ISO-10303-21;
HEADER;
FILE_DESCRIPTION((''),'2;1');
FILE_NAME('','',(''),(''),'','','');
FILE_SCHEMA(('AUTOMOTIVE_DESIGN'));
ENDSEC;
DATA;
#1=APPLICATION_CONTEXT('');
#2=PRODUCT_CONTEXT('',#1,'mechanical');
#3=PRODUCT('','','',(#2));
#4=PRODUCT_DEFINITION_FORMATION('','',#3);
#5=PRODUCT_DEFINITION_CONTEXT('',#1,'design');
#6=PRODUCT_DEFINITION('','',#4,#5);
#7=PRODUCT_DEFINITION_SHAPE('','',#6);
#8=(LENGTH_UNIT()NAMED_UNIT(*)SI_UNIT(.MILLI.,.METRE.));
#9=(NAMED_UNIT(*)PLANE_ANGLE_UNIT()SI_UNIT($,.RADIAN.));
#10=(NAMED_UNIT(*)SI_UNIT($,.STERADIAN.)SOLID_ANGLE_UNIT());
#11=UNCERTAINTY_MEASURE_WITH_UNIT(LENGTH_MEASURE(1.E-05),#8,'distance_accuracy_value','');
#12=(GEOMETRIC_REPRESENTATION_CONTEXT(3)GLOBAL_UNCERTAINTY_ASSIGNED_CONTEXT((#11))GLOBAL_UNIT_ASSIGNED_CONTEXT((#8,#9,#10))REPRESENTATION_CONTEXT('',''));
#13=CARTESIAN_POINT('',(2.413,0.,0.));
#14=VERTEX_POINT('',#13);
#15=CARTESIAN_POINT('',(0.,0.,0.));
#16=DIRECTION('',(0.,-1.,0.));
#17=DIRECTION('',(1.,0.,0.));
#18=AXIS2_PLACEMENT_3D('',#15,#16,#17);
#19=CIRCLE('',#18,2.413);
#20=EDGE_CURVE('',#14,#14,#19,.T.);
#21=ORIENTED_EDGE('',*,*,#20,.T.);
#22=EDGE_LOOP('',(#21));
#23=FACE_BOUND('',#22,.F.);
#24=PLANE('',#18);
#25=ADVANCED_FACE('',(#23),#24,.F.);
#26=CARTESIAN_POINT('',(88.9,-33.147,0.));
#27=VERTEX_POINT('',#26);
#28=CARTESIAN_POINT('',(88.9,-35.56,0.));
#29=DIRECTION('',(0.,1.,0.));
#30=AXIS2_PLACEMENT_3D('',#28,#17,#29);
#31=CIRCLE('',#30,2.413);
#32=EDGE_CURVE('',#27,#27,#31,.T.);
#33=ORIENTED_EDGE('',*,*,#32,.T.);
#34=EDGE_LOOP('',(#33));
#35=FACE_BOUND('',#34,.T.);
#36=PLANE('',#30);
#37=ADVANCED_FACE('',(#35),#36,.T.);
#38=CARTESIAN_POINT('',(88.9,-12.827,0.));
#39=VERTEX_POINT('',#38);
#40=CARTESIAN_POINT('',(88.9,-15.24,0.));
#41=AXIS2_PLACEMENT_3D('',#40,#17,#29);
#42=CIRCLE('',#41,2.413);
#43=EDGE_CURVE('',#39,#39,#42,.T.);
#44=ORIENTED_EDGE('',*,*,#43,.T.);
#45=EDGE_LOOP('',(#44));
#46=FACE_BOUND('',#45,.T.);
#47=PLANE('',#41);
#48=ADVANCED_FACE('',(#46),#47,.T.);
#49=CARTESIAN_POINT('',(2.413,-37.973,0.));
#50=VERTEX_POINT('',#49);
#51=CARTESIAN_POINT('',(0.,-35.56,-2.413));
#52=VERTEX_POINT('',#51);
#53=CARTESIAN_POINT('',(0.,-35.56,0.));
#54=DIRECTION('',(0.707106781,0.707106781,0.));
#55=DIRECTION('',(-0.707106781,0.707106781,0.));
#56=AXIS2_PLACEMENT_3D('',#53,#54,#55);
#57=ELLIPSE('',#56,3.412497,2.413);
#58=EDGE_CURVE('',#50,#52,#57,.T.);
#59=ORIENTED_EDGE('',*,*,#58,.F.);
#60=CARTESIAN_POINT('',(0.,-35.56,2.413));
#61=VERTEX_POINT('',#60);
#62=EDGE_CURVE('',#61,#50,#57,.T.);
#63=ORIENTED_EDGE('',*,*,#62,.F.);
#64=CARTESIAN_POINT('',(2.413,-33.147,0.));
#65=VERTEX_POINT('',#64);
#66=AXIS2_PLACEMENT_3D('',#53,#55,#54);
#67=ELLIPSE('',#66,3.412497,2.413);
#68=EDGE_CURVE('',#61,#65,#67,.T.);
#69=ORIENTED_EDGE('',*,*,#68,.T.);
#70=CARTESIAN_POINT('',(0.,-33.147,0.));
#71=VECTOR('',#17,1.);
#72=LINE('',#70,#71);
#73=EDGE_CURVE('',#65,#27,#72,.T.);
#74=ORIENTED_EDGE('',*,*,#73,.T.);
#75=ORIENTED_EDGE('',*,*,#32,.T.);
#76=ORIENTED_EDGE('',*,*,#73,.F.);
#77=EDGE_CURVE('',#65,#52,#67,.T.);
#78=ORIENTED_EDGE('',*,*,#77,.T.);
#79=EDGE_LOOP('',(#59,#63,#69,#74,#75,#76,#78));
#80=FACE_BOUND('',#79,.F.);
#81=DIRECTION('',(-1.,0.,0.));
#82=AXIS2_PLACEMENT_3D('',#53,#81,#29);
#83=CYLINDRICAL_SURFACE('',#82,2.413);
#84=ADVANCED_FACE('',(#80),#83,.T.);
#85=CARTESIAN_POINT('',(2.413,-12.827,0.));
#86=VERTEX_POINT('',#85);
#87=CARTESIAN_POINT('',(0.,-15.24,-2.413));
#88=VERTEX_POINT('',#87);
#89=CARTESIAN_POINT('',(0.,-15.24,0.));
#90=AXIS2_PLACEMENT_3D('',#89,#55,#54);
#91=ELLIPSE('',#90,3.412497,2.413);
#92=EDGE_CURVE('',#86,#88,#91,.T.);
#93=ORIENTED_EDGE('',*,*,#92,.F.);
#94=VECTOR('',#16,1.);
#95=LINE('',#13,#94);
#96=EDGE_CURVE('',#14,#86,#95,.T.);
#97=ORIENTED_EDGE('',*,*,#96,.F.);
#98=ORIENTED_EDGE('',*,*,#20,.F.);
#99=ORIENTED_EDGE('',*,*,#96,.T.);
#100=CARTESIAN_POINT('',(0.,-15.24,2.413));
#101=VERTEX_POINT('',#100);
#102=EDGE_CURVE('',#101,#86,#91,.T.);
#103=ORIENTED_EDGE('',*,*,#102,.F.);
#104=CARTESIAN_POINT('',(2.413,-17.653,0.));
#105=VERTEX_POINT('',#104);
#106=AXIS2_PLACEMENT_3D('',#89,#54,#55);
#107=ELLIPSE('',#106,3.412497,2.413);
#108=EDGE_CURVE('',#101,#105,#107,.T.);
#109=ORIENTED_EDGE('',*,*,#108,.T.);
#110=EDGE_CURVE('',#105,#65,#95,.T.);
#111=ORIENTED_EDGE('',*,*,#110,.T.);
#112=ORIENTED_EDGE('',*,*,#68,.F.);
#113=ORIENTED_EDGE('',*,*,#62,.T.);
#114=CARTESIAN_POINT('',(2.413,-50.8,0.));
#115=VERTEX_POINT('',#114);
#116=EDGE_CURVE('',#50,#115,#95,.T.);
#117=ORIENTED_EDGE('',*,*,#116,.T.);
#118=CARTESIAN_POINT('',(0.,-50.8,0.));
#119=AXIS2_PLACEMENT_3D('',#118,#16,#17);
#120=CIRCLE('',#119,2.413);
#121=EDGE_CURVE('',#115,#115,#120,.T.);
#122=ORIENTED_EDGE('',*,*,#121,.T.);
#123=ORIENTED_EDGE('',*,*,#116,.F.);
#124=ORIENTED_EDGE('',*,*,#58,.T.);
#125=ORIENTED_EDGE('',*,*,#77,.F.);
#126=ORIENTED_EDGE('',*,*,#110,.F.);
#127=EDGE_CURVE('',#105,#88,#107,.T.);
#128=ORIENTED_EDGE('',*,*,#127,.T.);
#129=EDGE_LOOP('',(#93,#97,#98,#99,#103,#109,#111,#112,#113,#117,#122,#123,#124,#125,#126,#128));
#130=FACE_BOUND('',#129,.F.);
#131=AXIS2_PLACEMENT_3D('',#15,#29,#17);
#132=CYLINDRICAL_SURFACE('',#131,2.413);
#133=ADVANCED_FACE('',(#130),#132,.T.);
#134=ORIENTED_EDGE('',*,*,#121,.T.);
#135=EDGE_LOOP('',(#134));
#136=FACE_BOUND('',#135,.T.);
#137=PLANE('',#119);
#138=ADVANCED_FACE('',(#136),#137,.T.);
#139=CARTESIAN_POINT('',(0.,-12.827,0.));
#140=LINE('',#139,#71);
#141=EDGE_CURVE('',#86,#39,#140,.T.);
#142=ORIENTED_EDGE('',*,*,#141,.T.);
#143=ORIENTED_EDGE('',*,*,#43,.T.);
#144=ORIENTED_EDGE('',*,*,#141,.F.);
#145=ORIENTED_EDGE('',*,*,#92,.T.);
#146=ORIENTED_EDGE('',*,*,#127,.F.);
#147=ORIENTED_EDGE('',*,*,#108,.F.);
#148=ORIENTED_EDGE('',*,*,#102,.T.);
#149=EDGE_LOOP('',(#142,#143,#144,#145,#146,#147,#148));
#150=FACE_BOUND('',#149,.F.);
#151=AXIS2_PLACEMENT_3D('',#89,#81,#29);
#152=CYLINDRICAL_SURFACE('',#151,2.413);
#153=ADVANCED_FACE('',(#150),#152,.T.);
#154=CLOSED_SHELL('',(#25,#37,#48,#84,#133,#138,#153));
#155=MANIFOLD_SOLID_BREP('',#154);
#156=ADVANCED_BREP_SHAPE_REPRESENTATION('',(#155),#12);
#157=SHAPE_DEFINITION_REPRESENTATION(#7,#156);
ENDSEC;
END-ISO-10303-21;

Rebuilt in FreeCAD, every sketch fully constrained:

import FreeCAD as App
import Part
import Sketcher
Q = App.Units.Quantity

doc = App.newDocument("Part")
body = doc.addObject("PartDesign::Body", "Body")

# Sketch on XZ plane
sketch1 = body.newObject("Sketcher::SketchObject", "Sketch")
sketch1.AttachmentSupport = (doc.getObject("XZ_Plane"), [""])
sketch1.MapMode = "FlatFace"
sketch1.addGeometry(Part.Circle(App.Vector(0, 0, 0), App.Vector(0, 0, 1), 2.4), False)
sketch1.addConstraint(Sketcher.Constraint("Coincident", 0, 3, -1, 1))
sketch1.addConstraint(Sketcher.Constraint("Diameter", 0, Q("0.19 in")))
pad1 = body.newObject("PartDesign::Pad", "Pad")
pad1.Profile = sketch1
pad1.Length = Q("2 in")

# Sketch on YZ plane
sketch2 = body.newObject("Sketcher::SketchObject", "Sketch001")
sketch2.AttachmentSupport = (doc.getObject("YZ_Plane"), [""])
sketch2.MapMode = "FlatFace"
sketch2.addGeometry(Part.Circle(App.Vector(-35.6, 0, 0), App.Vector(0, 0, 1), 2.4), False)
sketch2.addGeometry(Part.Circle(App.Vector(-15.2, 0, 0), App.Vector(0, 0, 1), 2.4), False)
sketch2.addConstraint(Sketcher.Constraint("Equal", 0, 1))
sketch2.addConstraint(Sketcher.Constraint("PointOnObject", 0, 3, -1))
sketch2.addConstraint(Sketcher.Constraint("PointOnObject", 1, 3, -1))
sketch2.addConstraint(Sketcher.Constraint("Diameter", 0, Q("0.19 in")))
sketch2.addConstraint(Sketcher.Constraint("DistanceX", 0, 3, -1, 1, Q("1.4 in")))
sketch2.addConstraint(Sketcher.Constraint("DistanceX", 1, 3, -1, 1, Q("0.6 in")))
pad2 = body.newObject("PartDesign::Pad", "Pad001")
pad2.Profile = sketch2
pad2.Length = Q("3.5 in")

doc.recompute()
